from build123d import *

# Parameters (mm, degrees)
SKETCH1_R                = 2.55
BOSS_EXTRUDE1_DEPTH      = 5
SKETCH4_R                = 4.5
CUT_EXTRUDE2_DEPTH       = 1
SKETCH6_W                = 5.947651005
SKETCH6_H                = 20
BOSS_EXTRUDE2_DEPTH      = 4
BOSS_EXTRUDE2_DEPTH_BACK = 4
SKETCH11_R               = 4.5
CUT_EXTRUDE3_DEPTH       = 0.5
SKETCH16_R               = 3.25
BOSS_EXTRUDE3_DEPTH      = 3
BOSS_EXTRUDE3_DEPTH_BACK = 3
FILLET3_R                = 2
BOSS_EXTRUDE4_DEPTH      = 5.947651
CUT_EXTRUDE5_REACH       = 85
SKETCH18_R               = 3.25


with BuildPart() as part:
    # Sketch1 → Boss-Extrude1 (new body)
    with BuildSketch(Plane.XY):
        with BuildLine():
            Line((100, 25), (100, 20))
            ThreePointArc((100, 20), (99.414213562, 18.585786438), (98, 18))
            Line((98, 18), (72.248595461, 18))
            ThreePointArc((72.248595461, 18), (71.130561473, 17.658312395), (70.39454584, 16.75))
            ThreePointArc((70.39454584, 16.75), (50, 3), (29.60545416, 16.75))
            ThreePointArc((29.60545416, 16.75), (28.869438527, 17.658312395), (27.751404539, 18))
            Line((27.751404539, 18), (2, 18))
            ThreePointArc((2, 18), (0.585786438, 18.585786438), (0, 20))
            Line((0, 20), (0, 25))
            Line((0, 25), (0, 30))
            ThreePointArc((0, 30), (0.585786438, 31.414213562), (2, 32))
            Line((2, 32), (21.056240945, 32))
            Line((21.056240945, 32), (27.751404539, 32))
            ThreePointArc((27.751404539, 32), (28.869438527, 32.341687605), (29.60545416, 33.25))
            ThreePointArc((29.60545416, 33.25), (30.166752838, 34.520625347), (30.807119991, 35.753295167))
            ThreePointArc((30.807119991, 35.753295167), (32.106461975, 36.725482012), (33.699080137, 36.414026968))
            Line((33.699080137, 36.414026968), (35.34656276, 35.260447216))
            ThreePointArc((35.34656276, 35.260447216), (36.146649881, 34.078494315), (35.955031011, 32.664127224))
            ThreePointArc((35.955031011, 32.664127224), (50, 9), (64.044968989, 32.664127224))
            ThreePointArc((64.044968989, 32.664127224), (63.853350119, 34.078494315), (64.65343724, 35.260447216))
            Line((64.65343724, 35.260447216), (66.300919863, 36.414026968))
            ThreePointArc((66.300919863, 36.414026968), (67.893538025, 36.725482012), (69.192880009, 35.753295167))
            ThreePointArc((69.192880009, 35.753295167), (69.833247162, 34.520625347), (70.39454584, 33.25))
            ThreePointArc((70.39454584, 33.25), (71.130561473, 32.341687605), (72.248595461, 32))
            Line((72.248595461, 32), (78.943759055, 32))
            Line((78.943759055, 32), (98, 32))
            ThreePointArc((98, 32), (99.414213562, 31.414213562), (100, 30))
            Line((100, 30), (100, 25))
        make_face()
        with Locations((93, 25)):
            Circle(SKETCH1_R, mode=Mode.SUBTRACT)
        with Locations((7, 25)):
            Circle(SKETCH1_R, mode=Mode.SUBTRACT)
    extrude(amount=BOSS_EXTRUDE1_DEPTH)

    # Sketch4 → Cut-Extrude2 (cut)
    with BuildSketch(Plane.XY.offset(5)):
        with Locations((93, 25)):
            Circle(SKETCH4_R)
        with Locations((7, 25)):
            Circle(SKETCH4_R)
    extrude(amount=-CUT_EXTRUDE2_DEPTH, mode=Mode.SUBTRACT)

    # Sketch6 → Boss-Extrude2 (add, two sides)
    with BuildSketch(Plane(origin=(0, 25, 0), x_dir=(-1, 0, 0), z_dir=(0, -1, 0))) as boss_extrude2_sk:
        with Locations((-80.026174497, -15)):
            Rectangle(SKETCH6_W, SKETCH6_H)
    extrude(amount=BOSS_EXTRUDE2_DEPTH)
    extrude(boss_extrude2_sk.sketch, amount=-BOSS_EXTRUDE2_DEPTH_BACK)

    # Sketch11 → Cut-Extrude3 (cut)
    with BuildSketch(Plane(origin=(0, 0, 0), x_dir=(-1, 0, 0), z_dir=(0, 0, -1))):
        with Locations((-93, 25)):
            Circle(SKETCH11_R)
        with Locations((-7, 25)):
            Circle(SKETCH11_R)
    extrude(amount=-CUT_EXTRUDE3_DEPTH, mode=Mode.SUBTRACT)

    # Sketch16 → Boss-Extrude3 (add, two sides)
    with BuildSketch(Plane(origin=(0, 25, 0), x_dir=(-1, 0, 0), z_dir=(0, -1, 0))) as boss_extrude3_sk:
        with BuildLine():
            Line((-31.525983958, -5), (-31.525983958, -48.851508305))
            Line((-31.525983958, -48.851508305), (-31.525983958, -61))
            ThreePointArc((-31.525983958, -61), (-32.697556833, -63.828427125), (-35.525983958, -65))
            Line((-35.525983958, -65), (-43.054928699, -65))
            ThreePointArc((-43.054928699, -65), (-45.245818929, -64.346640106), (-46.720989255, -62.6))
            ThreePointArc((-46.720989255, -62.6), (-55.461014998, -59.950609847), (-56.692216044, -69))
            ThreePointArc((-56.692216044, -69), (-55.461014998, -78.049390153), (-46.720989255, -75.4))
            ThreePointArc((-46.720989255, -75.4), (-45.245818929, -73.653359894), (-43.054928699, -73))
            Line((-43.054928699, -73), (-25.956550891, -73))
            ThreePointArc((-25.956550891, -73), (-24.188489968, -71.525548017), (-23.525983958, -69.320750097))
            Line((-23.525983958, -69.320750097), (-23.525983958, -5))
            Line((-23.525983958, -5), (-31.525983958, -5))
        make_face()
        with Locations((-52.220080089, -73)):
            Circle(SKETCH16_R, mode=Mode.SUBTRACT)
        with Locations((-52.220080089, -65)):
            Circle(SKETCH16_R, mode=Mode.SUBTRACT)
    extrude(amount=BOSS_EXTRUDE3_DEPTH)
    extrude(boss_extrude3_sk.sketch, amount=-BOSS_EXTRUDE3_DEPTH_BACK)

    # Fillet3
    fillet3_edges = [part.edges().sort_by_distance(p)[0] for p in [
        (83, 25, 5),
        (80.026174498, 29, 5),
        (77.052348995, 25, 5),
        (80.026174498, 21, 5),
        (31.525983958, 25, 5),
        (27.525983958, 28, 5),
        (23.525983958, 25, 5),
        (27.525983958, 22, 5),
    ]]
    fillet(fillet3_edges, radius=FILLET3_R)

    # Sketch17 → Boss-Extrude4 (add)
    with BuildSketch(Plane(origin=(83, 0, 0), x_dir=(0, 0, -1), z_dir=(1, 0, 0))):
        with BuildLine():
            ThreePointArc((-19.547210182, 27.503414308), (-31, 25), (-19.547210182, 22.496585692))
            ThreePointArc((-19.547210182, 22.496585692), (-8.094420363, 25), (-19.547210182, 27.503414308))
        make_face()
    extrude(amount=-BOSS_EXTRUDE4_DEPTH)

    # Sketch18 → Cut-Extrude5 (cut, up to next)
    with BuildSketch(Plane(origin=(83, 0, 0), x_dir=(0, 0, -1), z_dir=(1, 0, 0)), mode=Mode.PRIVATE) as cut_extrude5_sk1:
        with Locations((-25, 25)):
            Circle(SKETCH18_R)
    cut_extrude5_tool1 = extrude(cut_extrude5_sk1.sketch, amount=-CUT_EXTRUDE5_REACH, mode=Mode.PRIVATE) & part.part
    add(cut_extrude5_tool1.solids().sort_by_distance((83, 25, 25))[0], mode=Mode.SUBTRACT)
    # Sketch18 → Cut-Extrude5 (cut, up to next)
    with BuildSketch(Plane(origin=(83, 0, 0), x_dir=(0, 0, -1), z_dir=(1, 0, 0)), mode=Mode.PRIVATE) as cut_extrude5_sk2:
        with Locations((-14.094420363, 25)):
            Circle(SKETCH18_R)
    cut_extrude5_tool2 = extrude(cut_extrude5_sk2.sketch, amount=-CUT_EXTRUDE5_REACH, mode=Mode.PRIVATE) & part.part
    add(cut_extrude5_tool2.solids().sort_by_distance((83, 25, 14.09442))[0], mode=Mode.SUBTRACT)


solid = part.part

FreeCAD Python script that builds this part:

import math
import FreeCAD as App
import Part
import Sketcher
from FreeCAD import Vector
Q = App.Units.Quantity


def edges_at(feature, points):
    """Names of the edges that pass closest to the given points."""
    edges = feature.Shape.Edges
    near = lambda p: min(range(len(edges)), key=lambda i: edges[i].distToShape(Part.Vertex(*p))[0])
    return sorted({f"Edge{near(p) + 1}" for p in points})


def add_polygon(sketch, points):
    """Adds a closed chain of lines whose ends are joined by coincident constraints."""
    first, n = sketch.GeometryCount, len(points)
    for a, b in zip(points, points[1:] + points[:1]):
        sketch.addGeometry(Part.LineSegment(App.Vector(*a, 0), App.Vector(*b, 0)), False)
    for i in range(n):
        sketch.addConstraint(Sketcher.Constraint("Coincident", first + i, 2, first + (i + 1) % n, 1))

doc = App.newDocument("Part")
body = doc.addObject("PartDesign::Body", "Body")

sketch1 = body.newObject("Sketcher::SketchObject", "Sketch")
sketch1.AttachmentSupport = (doc.getObject("XY_Plane"), [""])
sketch1.MapMode = "FlatFace"
sketch1.addGeometry(Part.ArcOfCircle(Part.Circle(Vector(98, 20, 0), Vector(0, 0, 1), 2), math.radians(-90), math.radians(0)), False)
sketch1.addGeometry(Part.LineSegment(Vector(100, 20, 0), Vector(100, 30, 0)), False)
sketch1.addGeometry(Part.ArcOfCircle(Part.Circle(Vector(98, 30, 0), Vector(0, 0, 1), 2), math.radians(0), math.radians(90)), False)
sketch1.addGeometry(Part.LineSegment(Vector(98, 32, 0), Vector(72.2, 32, 0)), False)
sketch1.addGeometry(Part.ArcOfCircle(Part.Circle(Vector(72.2, 34, 0), Vector(0, 0, 1), 2), math.radians(-158), math.radians(-90)), False)
sketch1.addGeometry(Part.ArcOfCircle(Part.Circle(Vector(50, 25, 0), Vector(0, 0, 1), 22), math.radians(22.02), math.radians(29.26)), False)
sketch1.addGeometry(Part.ArcOfCircle(Part.Circle(Vector(67.4, 34.8, 0), Vector(0, 0, 1), 2), math.radians(29), math.radians(125)), False)
sketch1.addGeometry(Part.LineSegment(Vector(66.3, 36.4, 0), Vector(64.7, 35.3, 0)), False)
sketch1.addGeometry(Part.ArcOfCircle(Part.Circle(Vector(65.8, 33.6, 0), Vector(0, 0, 1), 2), math.radians(125), math.radians(209)), False)
sketch1.addGeometry(Part.ArcOfCircle(Part.Circle(Vector(50, 25, 0), Vector(0, 0, 1), 16), math.radians(151), math.radians(389)), False)
sketch1.addGeometry(Part.ArcOfCircle(Part.Circle(Vector(34.2, 33.6, 0), Vector(0, 0, 1), 2), math.radians(-29), math.radians(55)), False)
sketch1.addGeometry(Part.LineSegment(Vector(35.3, 35.3, 0), Vector(33.7, 36.4, 0)), False)
sketch1.addGeometry(Part.ArcOfCircle(Part.Circle(Vector(32.6, 34.8, 0), Vector(0, 0, 1), 2), math.radians(55), math.radians(151)), False)
sketch1.addGeometry(Part.ArcOfCircle(Part.Circle(Vector(50, 25, 0), Vector(0, 0, 1), 22), math.radians(150.74), math.radians(157.98)), False)
sketch1.addGeometry(Part.ArcOfCircle(Part.Circle(Vector(27.8, 34, 0), Vector(0, 0, 1), 2), math.radians(-90), math.radians(-22)), False)
sketch1.addGeometry(Part.LineSegment(Vector(27.8, 32, 0), Vector(2, 32, 0)), False)
sketch1.addGeometry(Part.ArcOfCircle(Part.Circle(Vector(2, 30, 0), Vector(0, 0, 1), 2), math.radians(90), math.radians(180)), False)
sketch1.addGeometry(Part.LineSegment(Vector(0, 30, 0), Vector(0, 20, 0)), False)
sketch1.addGeometry(Part.ArcOfCircle(Part.Circle(Vector(2, 20, 0), Vector(0, 0, 1), 2), math.radians(-180), math.radians(-90)), False)
sketch1.addGeometry(Part.LineSegment(Vector(2, 18, 0), Vector(27.8, 18, 0)), False)
sketch1.addGeometry(Part.ArcOfCircle(Part.Circle(Vector(27.8, 16, 0), Vector(0, 0, 1), 2), math.radians(22), math.radians(90)), False)
sketch1.addGeometry(Part.ArcOfCircle(Part.Circle(Vector(50, 25, 0), Vector(0, 0, 1), 22), math.radians(-158), math.radians(-22)), False)
sketch1.addGeometry(Part.ArcOfCircle(Part.Circle(Vector(72.2, 16, 0), Vector(0, 0, 1), 2), math.radians(90), math.radians(158)), False)
sketch1.addGeometry(Part.LineSegment(Vector(72.2, 18, 0), Vector(98, 18, 0)), False)
sketch1.addGeometry(Part.Circle(Vector(93, 25, 0), Vector(0, 0, 1), 2.5), False)
sketch1.addGeometry(Part.Circle(Vector(7, 25, 0), Vector(0, 0, 1), 2.5), False)
sketch1.addConstraint(Sketcher.Constraint("Tangent", 0, 2, 1, 1))
sketch1.addConstraint(Sketcher.Constraint("Tangent", 1, 2, 2, 1))
sketch1.addConstraint(Sketcher.Constraint("Tangent", 2, 2, 3, 1))
sketch1.addConstraint(Sketcher.Constraint("Tangent", 3, 2, 4, 2))
sketch1.addConstraint(Sketcher.Constraint("Tangent", 4, 1, 5, 1))
sketch1.addConstraint(Sketcher.Constraint("Tangent", 5, 2, 6, 1))
sketch1.addConstraint(Sketcher.Constraint("Tangent", 6, 2, 7, 1))
sketch1.addConstraint(Sketcher.Constraint("Tangent", 7, 2, 8, 1))
sketch1.addConstraint(Sketcher.Constraint("Tangent", 8, 2, 9, 2))
sketch1.addConstraint(Sketcher.Constraint("Tangent", 9, 1, 10, 1))
sketch1.addConstraint(Sketcher.Constraint("Tangent", 10, 2, 11, 1))
sketch1.addConstraint(Sketcher.Constraint("Tangent", 11, 2, 12, 1))
sketch1.addConstraint(Sketcher.Constraint("Tangent", 12, 2, 13, 1))
sketch1.addConstraint(Sketcher.Constraint("Tangent", 13, 2, 14, 2))
sketch1.addConstraint(Sketcher.Constraint("Tangent", 14, 1, 15, 1))
sketch1.addConstraint(Sketcher.Constraint("Tangent", 15, 2, 16, 1))
sketch1.addConstraint(Sketcher.Constraint("Tangent", 16, 2, 17, 1))
sketch1.addConstraint(Sketcher.Constraint("Tangent", 17, 2, 18, 1))
sketch1.addConstraint(Sketcher.Constraint("Tangent", 18, 2, 19, 1))
sketch1.addConstraint(Sketcher.Constraint("Tangent", 19, 2, 20, 2))
sketch1.addConstraint(Sketcher.Constraint("Tangent", 20, 1, 21, 1))
sketch1.addConstraint(Sketcher.Constraint("Tangent", 21, 2, 22, 2))
sketch1.addConstraint(Sketcher.Constraint("Tangent", 22, 1, 23, 1))
sketch1.addConstraint(Sketcher.Constraint("Tangent", 23, 2, 0, 1))
sketch1.addConstraint(Sketcher.Constraint("Vertical", 1))
sketch1.addConstraint(Sketcher.Constraint("Horizontal", 3))
sketch1.addConstraint(Sketcher.Constraint("Horizontal", 15))
sketch1.addConstraint(Sketcher.Constraint("Vertical", 17))
sketch1.addConstraint(Sketcher.Constraint("Horizontal", 19))
sketch1.addConstraint(Sketcher.Constraint("Horizontal", 23))
sketch1.addConstraint(Sketcher.Constraint("Coincident", 9, 3, 5, 3))
sketch1.addConstraint(Sketcher.Constraint("Coincident", 13, 3, 5, 3))
sketch1.addConstraint(Sketcher.Constraint("Coincident", 21, 3, 5, 3))
sketch1.addConstraint(Sketcher.Constraint("Equal", 0, 2))
sketch1.addConstraint(Sketcher.Constraint("Equal", 2, 4))
sketch1.addConstraint(Sketcher.Constraint("Equal", 4, 6))
sketch1.addConstraint(Sketcher.Constraint("Equal", 6, 8))
sketch1.addConstraint(Sketcher.Constraint("Equal", 8, 10))
sketch1.addConstraint(Sketcher.Constraint("Equal", 10, 12))
sketch1.addConstraint(Sketcher.Constraint("Equal", 5, 13))
sketch1.addConstraint(Sketcher.Constraint("Equal", 12, 14))
sketch1.addConstraint(Sketcher.Constraint("Equal", 14, 16))
sketch1.addConstraint(Sketcher.Constraint("Equal", 16, 18))
sketch1.addConstraint(Sketcher.Constraint("Equal", 18, 20))
sketch1.addConstraint(Sketcher.Constraint("Equal", 13, 21))
sketch1.addConstraint(Sketcher.Constraint("Equal", 20, 22))
sketch1.addConstraint(Sketcher.Constraint("Equal", 24, 25))
sketch1.addConstraint(Sketcher.Constraint("PointOnObject", 16, 2, -2))
sketch1.addConstraint(Sketcher.Constraint("Horizontal", 8, 3, 10, 3))
sketch1.addConstraint(Sketcher.Constraint("Horizontal", 6, 3, 12, 3))
sketch1.addConstraint(Sketcher.Constraint("Horizontal", 4, 3, 14, 3))
sketch1.addConstraint(Sketcher.Constraint("Horizontal", 0, 3, 18, 3))
sketch1.addConstraint(Sketcher.Constraint("Horizontal", 21, 3, 24, 3))
sketch1.addConstraint(Sketcher.Constraint("Horizontal", 24, 3, 25, 3))
sketch1.addConstraint(Sketcher.Constraint("Vertical", 14, 3, 20, 3))
sketch1.addConstraint(Sketcher.Constraint("Equal", 3, 15))
sketch1.addConstraint(Sketcher.Constraint("Radius", 0, 2.0))
sketch1.addConstraint(Sketcher.Constraint("Radius", 5, 22.0))
sketch1.addConstraint(Sketcher.Constraint("Radius", 9, 16.0))
sketch1.addConstraint(Sketcher.Constraint("Diameter", 24, 5.1))
sketch1.addConstraint(Sketcher.Constraint("DistanceY", 1, 1, 1, 2, 10.0))
sketch1.addConstraint(Sketcher.Constraint("Angle", 7, Q("-145 deg")))
sketch1.addConstraint(Sketcher.Constraint("DistanceX", -1, 1, 0, 3, 98.0))
sketch1.addConstraint(Sketcher.Constraint("DistanceY", -1, 1, 0, 3, 20.0))
sketch1.addConstraint(Sketcher.Constraint("DistanceX", -1, 1, 24, 3, 93.0))
sketch1.addConstraint(Sketcher.Constraint("DistanceX", -1, 1, 25, 3, 7.0))
sketch1.addConstraint(Sketcher.Constraint("DistanceY", 8, 2, 6, 2, 3.7499))
pad1 = body.newObject("PartDesign::Pad", "Pad")
pad1.Profile = sketch1
pad1.Length = 5

sketch2 = body.newObject("Sketcher::SketchObject", "Sketch001")
sketch2.AttachmentSupport = (doc.getObject("XY_Plane"), [""])
sketch2.MapMode = "FlatFace"
sketch2.AttachmentOffset = App.Placement(Vector(0, 0, 5), App.Rotation())
sketch2.addGeometry(Part.Circle(Vector(93, 25, 0), Vector(0, 0, 1), 4.5), False)
sketch2.addGeometry(Part.Circle(Vector(7, 25, 0), Vector(0, 0, 1), 4.5), False)
sketch2.addConstraint(Sketcher.Constraint("Equal", 0, 1))
sketch2.addConstraint(Sketcher.Constraint("Horizontal", 0, 3, 1, 3))
sketch2.addConstraint(Sketcher.Constraint("Diameter", 0, 9.0))
sketch2.addConstraint(Sketcher.Constraint("DistanceX", -1, 1, 0, 3, 93.0))
sketch2.addConstraint(Sketcher.Constraint("DistanceY", -1, 1, 0, 3, 25.0))
sketch2.addConstraint(Sketcher.Constraint("DistanceX", -1, 1, 1, 3, 7.0))
pocket1 = body.newObject("PartDesign::Pocket", "Pocket")
pocket1.Profile = sketch2
pocket1.Length = 1

sketch3 = body.newObject("Sketcher::SketchObject", "Sketch002")
sketch3.AttachmentSupport = (doc.getObject("XZ_Plane"), [""])
sketch3.MapMode = "FlatFace"
sketch3.AttachmentOffset = App.Placement(Vector(0, 0, -25), App.Rotation())
add_polygon(sketch3, [(83, 5), (83, 25), (77, 25), (77, 5)])
sketch3.addConstraint(Sketcher.Constraint("Vertical", 0))
sketch3.addConstraint(Sketcher.Constraint("Horizontal", 1))
sketch3.addConstraint(Sketcher.Constraint("Vertical", 2))
sketch3.addConstraint(Sketcher.Constraint("Horizontal", 3))
sketch3.addConstraint(Sketcher.Constraint("DistanceY", 0, 1, 0, 2, 20.0))
sketch3.addConstraint(Sketcher.Constraint("DistanceX", -1, 1, 0, 2, 83.0))
sketch3.addConstraint(Sketcher.Constraint("DistanceY", -1, 1, 0, 2, 25.0))
sketch3.addConstraint(Sketcher.Constraint("DistanceX", 1, 2, 1, 1, 5.947651))
pad2 = body.newObject("PartDesign::Pad", "Pad001")
pad2.Profile = sketch3
pad2.Type = "TwoLengths"
pad2.Length = 4
pad2.Length2 = 4

sketch4 = body.newObject("Sketcher::SketchObject", "Sketch003")
sketch4.AttachmentSupport = (doc.getObject("XY_Plane"), [""])
sketch4.MapMode = "FlatFace"
sketch4.addGeometry(Part.Circle(Vector(93, 25, 0), Vector(0, 0, 1), 4.5), False)
sketch4.addGeometry(Part.Circle(Vector(7, 25, 0), Vector(0, 0, 1), 4.5), False)
sketch4.addConstraint(Sketcher.Constraint("Equal", 0, 1))
sketch4.addConstraint(Sketcher.Constraint("Horizontal", 0, 3, 1, 3))
sketch4.addConstraint(Sketcher.Constraint("Diameter", 0, 9.0))
sketch4.addConstraint(Sketcher.Constraint("DistanceX", -1, 1, 0, 3, 93.0))
sketch4.addConstraint(Sketcher.Constraint("DistanceY", -1, 1, 0, 3, 25.0))
sketch4.addConstraint(Sketcher.Constraint("DistanceX", -1, 1, 1, 3, 7.0))
pocket2 = body.newObject("PartDesign::Pocket", "Pocket001")
pocket2.Profile = sketch4
pocket2.Length = 0.5
pocket2.Reversed = True

sketch5 = body.newObject("Sketcher::SketchObject", "Sketch004")
sketch5.AttachmentSupport = (doc.getObject("XZ_Plane"), [""])
sketch5.MapMode = "FlatFace"
sketch5.AttachmentOffset = App.Placement(Vector(0, 0, -25), App.Rotation())
sketch5.addGeometry(Part.LineSegment(Vector(31.5, 5, 0), Vector(31.5, 61, 0)), False)
sketch5.addGeometry(Part.ArcOfCircle(Part.Circle(Vector(35.5, 61, 0), Vector(0, 0, 1), 4), math.radians(90), math.radians(180)), False)
sketch5.addGeometry(Part.LineSegment(Vector(35.5, 65, 0), Vector(43.1, 65, 0)), False)
sketch5.addGeometry(Part.ArcOfCircle(Part.Circle(Vector(43.1, 61, 0), Vector(0, 0, 1), 4), math.radians(24), math.radians(90)), False)
sketch5.addGeometry(Part.ArcOfCircle(Part.Circle(Vector(52.2, 65, 0), Vector(0, 0, 1), 6), math.radians(-156), math.radians(42)), False)
sketch5.addGeometry(Part.ArcOfCircle(Part.Circle(Vector(52.2, 73, 0), Vector(0, 0, 1), 6), math.radians(-42), math.radians(156)), False)
sketch5.addGeometry(Part.ArcOfCircle(Part.Circle(Vector(43.1, 77, 0), Vector(0, 0, 1), 4), math.radians(-90), math.radians(-24)), False)
sketch5.addGeometry(Part.LineSegment(Vector(43.1, 73, 0), Vector(26, 73, 0)), False)
sketch5.addGeometry(Part.ArcOfCircle(Part.Circle(Vector(27.5, 69.3, 0), Vector(0, 0, 1), 4), math.radians(113), math.radians(180)), False)
sketch5.addGeometry(Part.LineSegment(Vector(23.5, 69.3, 0), Vector(23.5, 5, 0)), False)
sketch5.addGeometry(Part.LineSegment(Vector(23.5, 5, 0), Vector(31.5, 5, 0)), False)
sketch5.addGeometry(Part.Circle(Vector(52.2, 73, 0), Vector(0, 0, 1), 3.2), False)
sketch5.addGeometry(Part.Circle(Vector(52.2, 65, 0), Vector(0, 0, 1), 3.2), False)
sketch5.addConstraint(Sketcher.Constraint("Tangent", 0, 2, 1, 2))
sketch5.addConstraint(Sketcher.Constraint("Tangent", 1, 1, 2, 1))
sketch5.addConstraint(Sketcher.Constraint("Tangent", 2, 2, 3, 2))
sketch5.addConstraint(Sketcher.Constraint("Tangent", 3, 1, 4, 1))
sketch5.addConstraint(Sketcher.Constraint("Coincident", 4, 2, 5, 1))
sketch5.addConstraint(Sketcher.Constraint("Tangent", 5, 2, 6, 2))
sketch5.addConstraint(Sketcher.Constraint("Tangent", 6, 1, 7, 1))
sketch5.addConstraint(Sketcher.Constraint("Coincident", 7, 2, 8, 1))
sketch5.addConstraint(Sketcher.Constraint("Tangent", 8, 2, 9, 1))
sketch5.addConstraint(Sketcher.Constraint("Coincident", 9, 2, 10, 1))
sketch5.addConstraint(Sketcher.Constraint("Coincident", 10, 2, 0, 1))
sketch5.addConstraint(Sketcher.Constraint("Vertical", 0))
sketch5.addConstraint(Sketcher.Constraint("Horizontal", 2))
sketch5.addConstraint(Sketcher.Constraint("Horizontal", 7))
sketch5.addConstraint(Sketcher.Constraint("Vertical", 9))
sketch5.addConstraint(Sketcher.Constraint("Horizontal", 10))
sketch5.addConstraint(Sketcher.Constraint("Coincident", 11, 3, 5, 3))
sketch5.addConstraint(Sketcher.Constraint("Coincident", 12, 3, 4, 3))
sketch5.addConstraint(Sketcher.Constraint("Equal", 1, 3))
sketch5.addConstraint(Sketcher.Constraint("Equal", 4, 5))
sketch5.addConstraint(Sketcher.Constraint("Equal", 3, 6))
sketch5.addConstraint(Sketcher.Constraint("Equal", 6, 8))
sketch5.addConstraint(Sketcher.Constraint("Equal", 11, 12))
sketch5.addConstraint(Sketcher.Constraint("Horizontal", 12, 3, 1, 1))
sketch5.addConstraint(Sketcher.Constraint("Horizontal", 11, 3, 6, 1))
sketch5.addConstraint(Sketcher.Constraint("Vertical", 4, 3, 5, 3))
sketch5.addConstraint(Sketcher.Constraint("Radius", 1, 4.0))
sketch5.addConstraint(Sketcher.Constraint("Radius", 4, 6.0))
sketch5.addConstraint(Sketcher.Constraint("Diameter", 11, 6.5))
sketch5.addConstraint(Sketcher.Constraint("DistanceX", 10, 1, 10, 2, 8.0))
sketch5.addConstraint(Sketcher.Constraint("DistanceY", 0, 1, 0, 2, 56.0))
sketch5.addConstraint(Sketcher.Constraint("DistanceY", -1, 1, 1, 3, 61.0))
sketch5.addConstraint(Sketcher.Constraint("DistanceY", -1, 1, 5, 3, 73.0))
sketch5.addConstraint(Sketcher.Constraint("DistanceY", 9, 2, 9, 1, 64.32075))
sketch5.addConstraint(Sketcher.Constraint("DistanceX", 2, 1, 2, 2, 7.528945))
sketch5.addConstraint(Sketcher.Constraint("DistanceX", -1, 1, 3, 3, 43.054929))
pad3 = body.newObject("PartDesign::Pad", "Pad002")
pad3.Profile = sketch5
pad3.Type = "TwoLengths"
pad3.Length = 3
pad3.Length2 = 3
doc.recompute()

fillet = body.newObject("PartDesign::Fillet", "Fillet")
fillet.Base = (pad3, edges_at(pad3, [
    (83, 25, 5),
    (80.026, 29, 5),
    (77.052, 25, 5),
    (80.026, 21, 5),
    (31.526, 25, 5),
    (27.526, 28, 5),
    (23.526, 25, 5),
    (27.526, 22, 5),
]))
fillet.Radius = 2

sketch6 = body.newObject("Sketcher::SketchObject", "Sketch005")
sketch6.AttachmentSupport = (doc.getObject("YZ_Plane"), [""])
sketch6.MapMode = "FlatFace"
sketch6.AttachmentOffset = App.Placement(Vector(0, 0, 83), App.Rotation())
sketch6.addGeometry(Part.ArcOfCircle(Part.Circle(Vector(25, 25, 0), Vector(0, 0, 1), 6), math.radians(-65), math.radians(245)), False)
sketch6.addGeometry(Part.ArcOfCircle(Part.Circle(Vector(25, 14, 0), Vector(0, 0, 1), 6), math.radians(115), math.radians(425)), False)
sketch6.addConstraint(Sketcher.Constraint("Coincident", 0, 1, 1, 2))
sketch6.addConstraint(Sketcher.Constraint("Coincident", 1, 1, 0, 2))
sketch6.addConstraint(Sketcher.Constraint("Equal", 0, 1))
sketch6.addConstraint(Sketcher.Constraint("Horizontal", 0, 1, 1, 1))
sketch6.addConstraint(Sketcher.Constraint("Radius", 0, 6.0))
sketch6.addConstraint(Sketcher.Constraint("DistanceX", -1, 1, 0, 3, 25.0))
sketch6.addConstraint(Sketcher.Constraint("DistanceY", -1, 1, 0, 3, 25.0))
sketch6.addConstraint(Sketcher.Constraint("DistanceY", -1, 1, 1, 3, 14.09442))
pad4 = body.newObject("PartDesign::Pad", "Pad003")
pad4.Profile = sketch6
pad4.Length = 5.947651
pad4.Reversed = True

sketch7 = body.newObject("Sketcher::SketchObject", "Sketch006")
sketch7.AttachmentSupport = (doc.getObject("YZ_Plane"), [""])
sketch7.MapMode = "FlatFace"
sketch7.AttachmentOffset = App.Placement(Vector(0, 0, 83), App.Rotation())
sketch7.addGeometry(Part.Circle(Vector(25, 25, 0), Vector(0, 0, 1), 3.2), False)
sketch7.addConstraint(Sketcher.Constraint("Diameter", 0, 6.5))
sketch7.addConstraint(Sketcher.Constraint("DistanceX", -1, 1, 0, 3, 25.0))
sketch7.addConstraint(Sketcher.Constraint("DistanceY", -1, 1, 0, 3, 25.0))
pocket3 = body.newObject("PartDesign::Pocket", "Pocket002")
pocket3.Profile = sketch7
pocket3.Type = "UpToFirst"

sketch8 = body.newObject("Sketcher::SketchObject", "Sketch007")
sketch8.AttachmentSupport = (doc.getObject("YZ_Plane"), [""])
sketch8.MapMode = "FlatFace"
sketch8.AttachmentOffset = App.Placement(Vector(0, 0, 83), App.Rotation())
sketch8.addGeometry(Part.Circle(Vector(25, 14.1, 0), Vector(0, 0, 1), 3.2), False)
sketch8.addConstraint(Sketcher.Constraint("Diameter", 0, 6.5))
sketch8.addConstraint(Sketcher.Constraint("DistanceX", -1, 1, 0, 3, 25.0))
sketch8.addConstraint(Sketcher.Constraint("DistanceY", -1, 1, 0, 3, 14.09442))
pocket4 = body.newObject("PartDesign::Pocket", "Pocket003")
pocket4.Profile = sketch8
pocket4.Type = "UpToFirst"

doc.recompute()
